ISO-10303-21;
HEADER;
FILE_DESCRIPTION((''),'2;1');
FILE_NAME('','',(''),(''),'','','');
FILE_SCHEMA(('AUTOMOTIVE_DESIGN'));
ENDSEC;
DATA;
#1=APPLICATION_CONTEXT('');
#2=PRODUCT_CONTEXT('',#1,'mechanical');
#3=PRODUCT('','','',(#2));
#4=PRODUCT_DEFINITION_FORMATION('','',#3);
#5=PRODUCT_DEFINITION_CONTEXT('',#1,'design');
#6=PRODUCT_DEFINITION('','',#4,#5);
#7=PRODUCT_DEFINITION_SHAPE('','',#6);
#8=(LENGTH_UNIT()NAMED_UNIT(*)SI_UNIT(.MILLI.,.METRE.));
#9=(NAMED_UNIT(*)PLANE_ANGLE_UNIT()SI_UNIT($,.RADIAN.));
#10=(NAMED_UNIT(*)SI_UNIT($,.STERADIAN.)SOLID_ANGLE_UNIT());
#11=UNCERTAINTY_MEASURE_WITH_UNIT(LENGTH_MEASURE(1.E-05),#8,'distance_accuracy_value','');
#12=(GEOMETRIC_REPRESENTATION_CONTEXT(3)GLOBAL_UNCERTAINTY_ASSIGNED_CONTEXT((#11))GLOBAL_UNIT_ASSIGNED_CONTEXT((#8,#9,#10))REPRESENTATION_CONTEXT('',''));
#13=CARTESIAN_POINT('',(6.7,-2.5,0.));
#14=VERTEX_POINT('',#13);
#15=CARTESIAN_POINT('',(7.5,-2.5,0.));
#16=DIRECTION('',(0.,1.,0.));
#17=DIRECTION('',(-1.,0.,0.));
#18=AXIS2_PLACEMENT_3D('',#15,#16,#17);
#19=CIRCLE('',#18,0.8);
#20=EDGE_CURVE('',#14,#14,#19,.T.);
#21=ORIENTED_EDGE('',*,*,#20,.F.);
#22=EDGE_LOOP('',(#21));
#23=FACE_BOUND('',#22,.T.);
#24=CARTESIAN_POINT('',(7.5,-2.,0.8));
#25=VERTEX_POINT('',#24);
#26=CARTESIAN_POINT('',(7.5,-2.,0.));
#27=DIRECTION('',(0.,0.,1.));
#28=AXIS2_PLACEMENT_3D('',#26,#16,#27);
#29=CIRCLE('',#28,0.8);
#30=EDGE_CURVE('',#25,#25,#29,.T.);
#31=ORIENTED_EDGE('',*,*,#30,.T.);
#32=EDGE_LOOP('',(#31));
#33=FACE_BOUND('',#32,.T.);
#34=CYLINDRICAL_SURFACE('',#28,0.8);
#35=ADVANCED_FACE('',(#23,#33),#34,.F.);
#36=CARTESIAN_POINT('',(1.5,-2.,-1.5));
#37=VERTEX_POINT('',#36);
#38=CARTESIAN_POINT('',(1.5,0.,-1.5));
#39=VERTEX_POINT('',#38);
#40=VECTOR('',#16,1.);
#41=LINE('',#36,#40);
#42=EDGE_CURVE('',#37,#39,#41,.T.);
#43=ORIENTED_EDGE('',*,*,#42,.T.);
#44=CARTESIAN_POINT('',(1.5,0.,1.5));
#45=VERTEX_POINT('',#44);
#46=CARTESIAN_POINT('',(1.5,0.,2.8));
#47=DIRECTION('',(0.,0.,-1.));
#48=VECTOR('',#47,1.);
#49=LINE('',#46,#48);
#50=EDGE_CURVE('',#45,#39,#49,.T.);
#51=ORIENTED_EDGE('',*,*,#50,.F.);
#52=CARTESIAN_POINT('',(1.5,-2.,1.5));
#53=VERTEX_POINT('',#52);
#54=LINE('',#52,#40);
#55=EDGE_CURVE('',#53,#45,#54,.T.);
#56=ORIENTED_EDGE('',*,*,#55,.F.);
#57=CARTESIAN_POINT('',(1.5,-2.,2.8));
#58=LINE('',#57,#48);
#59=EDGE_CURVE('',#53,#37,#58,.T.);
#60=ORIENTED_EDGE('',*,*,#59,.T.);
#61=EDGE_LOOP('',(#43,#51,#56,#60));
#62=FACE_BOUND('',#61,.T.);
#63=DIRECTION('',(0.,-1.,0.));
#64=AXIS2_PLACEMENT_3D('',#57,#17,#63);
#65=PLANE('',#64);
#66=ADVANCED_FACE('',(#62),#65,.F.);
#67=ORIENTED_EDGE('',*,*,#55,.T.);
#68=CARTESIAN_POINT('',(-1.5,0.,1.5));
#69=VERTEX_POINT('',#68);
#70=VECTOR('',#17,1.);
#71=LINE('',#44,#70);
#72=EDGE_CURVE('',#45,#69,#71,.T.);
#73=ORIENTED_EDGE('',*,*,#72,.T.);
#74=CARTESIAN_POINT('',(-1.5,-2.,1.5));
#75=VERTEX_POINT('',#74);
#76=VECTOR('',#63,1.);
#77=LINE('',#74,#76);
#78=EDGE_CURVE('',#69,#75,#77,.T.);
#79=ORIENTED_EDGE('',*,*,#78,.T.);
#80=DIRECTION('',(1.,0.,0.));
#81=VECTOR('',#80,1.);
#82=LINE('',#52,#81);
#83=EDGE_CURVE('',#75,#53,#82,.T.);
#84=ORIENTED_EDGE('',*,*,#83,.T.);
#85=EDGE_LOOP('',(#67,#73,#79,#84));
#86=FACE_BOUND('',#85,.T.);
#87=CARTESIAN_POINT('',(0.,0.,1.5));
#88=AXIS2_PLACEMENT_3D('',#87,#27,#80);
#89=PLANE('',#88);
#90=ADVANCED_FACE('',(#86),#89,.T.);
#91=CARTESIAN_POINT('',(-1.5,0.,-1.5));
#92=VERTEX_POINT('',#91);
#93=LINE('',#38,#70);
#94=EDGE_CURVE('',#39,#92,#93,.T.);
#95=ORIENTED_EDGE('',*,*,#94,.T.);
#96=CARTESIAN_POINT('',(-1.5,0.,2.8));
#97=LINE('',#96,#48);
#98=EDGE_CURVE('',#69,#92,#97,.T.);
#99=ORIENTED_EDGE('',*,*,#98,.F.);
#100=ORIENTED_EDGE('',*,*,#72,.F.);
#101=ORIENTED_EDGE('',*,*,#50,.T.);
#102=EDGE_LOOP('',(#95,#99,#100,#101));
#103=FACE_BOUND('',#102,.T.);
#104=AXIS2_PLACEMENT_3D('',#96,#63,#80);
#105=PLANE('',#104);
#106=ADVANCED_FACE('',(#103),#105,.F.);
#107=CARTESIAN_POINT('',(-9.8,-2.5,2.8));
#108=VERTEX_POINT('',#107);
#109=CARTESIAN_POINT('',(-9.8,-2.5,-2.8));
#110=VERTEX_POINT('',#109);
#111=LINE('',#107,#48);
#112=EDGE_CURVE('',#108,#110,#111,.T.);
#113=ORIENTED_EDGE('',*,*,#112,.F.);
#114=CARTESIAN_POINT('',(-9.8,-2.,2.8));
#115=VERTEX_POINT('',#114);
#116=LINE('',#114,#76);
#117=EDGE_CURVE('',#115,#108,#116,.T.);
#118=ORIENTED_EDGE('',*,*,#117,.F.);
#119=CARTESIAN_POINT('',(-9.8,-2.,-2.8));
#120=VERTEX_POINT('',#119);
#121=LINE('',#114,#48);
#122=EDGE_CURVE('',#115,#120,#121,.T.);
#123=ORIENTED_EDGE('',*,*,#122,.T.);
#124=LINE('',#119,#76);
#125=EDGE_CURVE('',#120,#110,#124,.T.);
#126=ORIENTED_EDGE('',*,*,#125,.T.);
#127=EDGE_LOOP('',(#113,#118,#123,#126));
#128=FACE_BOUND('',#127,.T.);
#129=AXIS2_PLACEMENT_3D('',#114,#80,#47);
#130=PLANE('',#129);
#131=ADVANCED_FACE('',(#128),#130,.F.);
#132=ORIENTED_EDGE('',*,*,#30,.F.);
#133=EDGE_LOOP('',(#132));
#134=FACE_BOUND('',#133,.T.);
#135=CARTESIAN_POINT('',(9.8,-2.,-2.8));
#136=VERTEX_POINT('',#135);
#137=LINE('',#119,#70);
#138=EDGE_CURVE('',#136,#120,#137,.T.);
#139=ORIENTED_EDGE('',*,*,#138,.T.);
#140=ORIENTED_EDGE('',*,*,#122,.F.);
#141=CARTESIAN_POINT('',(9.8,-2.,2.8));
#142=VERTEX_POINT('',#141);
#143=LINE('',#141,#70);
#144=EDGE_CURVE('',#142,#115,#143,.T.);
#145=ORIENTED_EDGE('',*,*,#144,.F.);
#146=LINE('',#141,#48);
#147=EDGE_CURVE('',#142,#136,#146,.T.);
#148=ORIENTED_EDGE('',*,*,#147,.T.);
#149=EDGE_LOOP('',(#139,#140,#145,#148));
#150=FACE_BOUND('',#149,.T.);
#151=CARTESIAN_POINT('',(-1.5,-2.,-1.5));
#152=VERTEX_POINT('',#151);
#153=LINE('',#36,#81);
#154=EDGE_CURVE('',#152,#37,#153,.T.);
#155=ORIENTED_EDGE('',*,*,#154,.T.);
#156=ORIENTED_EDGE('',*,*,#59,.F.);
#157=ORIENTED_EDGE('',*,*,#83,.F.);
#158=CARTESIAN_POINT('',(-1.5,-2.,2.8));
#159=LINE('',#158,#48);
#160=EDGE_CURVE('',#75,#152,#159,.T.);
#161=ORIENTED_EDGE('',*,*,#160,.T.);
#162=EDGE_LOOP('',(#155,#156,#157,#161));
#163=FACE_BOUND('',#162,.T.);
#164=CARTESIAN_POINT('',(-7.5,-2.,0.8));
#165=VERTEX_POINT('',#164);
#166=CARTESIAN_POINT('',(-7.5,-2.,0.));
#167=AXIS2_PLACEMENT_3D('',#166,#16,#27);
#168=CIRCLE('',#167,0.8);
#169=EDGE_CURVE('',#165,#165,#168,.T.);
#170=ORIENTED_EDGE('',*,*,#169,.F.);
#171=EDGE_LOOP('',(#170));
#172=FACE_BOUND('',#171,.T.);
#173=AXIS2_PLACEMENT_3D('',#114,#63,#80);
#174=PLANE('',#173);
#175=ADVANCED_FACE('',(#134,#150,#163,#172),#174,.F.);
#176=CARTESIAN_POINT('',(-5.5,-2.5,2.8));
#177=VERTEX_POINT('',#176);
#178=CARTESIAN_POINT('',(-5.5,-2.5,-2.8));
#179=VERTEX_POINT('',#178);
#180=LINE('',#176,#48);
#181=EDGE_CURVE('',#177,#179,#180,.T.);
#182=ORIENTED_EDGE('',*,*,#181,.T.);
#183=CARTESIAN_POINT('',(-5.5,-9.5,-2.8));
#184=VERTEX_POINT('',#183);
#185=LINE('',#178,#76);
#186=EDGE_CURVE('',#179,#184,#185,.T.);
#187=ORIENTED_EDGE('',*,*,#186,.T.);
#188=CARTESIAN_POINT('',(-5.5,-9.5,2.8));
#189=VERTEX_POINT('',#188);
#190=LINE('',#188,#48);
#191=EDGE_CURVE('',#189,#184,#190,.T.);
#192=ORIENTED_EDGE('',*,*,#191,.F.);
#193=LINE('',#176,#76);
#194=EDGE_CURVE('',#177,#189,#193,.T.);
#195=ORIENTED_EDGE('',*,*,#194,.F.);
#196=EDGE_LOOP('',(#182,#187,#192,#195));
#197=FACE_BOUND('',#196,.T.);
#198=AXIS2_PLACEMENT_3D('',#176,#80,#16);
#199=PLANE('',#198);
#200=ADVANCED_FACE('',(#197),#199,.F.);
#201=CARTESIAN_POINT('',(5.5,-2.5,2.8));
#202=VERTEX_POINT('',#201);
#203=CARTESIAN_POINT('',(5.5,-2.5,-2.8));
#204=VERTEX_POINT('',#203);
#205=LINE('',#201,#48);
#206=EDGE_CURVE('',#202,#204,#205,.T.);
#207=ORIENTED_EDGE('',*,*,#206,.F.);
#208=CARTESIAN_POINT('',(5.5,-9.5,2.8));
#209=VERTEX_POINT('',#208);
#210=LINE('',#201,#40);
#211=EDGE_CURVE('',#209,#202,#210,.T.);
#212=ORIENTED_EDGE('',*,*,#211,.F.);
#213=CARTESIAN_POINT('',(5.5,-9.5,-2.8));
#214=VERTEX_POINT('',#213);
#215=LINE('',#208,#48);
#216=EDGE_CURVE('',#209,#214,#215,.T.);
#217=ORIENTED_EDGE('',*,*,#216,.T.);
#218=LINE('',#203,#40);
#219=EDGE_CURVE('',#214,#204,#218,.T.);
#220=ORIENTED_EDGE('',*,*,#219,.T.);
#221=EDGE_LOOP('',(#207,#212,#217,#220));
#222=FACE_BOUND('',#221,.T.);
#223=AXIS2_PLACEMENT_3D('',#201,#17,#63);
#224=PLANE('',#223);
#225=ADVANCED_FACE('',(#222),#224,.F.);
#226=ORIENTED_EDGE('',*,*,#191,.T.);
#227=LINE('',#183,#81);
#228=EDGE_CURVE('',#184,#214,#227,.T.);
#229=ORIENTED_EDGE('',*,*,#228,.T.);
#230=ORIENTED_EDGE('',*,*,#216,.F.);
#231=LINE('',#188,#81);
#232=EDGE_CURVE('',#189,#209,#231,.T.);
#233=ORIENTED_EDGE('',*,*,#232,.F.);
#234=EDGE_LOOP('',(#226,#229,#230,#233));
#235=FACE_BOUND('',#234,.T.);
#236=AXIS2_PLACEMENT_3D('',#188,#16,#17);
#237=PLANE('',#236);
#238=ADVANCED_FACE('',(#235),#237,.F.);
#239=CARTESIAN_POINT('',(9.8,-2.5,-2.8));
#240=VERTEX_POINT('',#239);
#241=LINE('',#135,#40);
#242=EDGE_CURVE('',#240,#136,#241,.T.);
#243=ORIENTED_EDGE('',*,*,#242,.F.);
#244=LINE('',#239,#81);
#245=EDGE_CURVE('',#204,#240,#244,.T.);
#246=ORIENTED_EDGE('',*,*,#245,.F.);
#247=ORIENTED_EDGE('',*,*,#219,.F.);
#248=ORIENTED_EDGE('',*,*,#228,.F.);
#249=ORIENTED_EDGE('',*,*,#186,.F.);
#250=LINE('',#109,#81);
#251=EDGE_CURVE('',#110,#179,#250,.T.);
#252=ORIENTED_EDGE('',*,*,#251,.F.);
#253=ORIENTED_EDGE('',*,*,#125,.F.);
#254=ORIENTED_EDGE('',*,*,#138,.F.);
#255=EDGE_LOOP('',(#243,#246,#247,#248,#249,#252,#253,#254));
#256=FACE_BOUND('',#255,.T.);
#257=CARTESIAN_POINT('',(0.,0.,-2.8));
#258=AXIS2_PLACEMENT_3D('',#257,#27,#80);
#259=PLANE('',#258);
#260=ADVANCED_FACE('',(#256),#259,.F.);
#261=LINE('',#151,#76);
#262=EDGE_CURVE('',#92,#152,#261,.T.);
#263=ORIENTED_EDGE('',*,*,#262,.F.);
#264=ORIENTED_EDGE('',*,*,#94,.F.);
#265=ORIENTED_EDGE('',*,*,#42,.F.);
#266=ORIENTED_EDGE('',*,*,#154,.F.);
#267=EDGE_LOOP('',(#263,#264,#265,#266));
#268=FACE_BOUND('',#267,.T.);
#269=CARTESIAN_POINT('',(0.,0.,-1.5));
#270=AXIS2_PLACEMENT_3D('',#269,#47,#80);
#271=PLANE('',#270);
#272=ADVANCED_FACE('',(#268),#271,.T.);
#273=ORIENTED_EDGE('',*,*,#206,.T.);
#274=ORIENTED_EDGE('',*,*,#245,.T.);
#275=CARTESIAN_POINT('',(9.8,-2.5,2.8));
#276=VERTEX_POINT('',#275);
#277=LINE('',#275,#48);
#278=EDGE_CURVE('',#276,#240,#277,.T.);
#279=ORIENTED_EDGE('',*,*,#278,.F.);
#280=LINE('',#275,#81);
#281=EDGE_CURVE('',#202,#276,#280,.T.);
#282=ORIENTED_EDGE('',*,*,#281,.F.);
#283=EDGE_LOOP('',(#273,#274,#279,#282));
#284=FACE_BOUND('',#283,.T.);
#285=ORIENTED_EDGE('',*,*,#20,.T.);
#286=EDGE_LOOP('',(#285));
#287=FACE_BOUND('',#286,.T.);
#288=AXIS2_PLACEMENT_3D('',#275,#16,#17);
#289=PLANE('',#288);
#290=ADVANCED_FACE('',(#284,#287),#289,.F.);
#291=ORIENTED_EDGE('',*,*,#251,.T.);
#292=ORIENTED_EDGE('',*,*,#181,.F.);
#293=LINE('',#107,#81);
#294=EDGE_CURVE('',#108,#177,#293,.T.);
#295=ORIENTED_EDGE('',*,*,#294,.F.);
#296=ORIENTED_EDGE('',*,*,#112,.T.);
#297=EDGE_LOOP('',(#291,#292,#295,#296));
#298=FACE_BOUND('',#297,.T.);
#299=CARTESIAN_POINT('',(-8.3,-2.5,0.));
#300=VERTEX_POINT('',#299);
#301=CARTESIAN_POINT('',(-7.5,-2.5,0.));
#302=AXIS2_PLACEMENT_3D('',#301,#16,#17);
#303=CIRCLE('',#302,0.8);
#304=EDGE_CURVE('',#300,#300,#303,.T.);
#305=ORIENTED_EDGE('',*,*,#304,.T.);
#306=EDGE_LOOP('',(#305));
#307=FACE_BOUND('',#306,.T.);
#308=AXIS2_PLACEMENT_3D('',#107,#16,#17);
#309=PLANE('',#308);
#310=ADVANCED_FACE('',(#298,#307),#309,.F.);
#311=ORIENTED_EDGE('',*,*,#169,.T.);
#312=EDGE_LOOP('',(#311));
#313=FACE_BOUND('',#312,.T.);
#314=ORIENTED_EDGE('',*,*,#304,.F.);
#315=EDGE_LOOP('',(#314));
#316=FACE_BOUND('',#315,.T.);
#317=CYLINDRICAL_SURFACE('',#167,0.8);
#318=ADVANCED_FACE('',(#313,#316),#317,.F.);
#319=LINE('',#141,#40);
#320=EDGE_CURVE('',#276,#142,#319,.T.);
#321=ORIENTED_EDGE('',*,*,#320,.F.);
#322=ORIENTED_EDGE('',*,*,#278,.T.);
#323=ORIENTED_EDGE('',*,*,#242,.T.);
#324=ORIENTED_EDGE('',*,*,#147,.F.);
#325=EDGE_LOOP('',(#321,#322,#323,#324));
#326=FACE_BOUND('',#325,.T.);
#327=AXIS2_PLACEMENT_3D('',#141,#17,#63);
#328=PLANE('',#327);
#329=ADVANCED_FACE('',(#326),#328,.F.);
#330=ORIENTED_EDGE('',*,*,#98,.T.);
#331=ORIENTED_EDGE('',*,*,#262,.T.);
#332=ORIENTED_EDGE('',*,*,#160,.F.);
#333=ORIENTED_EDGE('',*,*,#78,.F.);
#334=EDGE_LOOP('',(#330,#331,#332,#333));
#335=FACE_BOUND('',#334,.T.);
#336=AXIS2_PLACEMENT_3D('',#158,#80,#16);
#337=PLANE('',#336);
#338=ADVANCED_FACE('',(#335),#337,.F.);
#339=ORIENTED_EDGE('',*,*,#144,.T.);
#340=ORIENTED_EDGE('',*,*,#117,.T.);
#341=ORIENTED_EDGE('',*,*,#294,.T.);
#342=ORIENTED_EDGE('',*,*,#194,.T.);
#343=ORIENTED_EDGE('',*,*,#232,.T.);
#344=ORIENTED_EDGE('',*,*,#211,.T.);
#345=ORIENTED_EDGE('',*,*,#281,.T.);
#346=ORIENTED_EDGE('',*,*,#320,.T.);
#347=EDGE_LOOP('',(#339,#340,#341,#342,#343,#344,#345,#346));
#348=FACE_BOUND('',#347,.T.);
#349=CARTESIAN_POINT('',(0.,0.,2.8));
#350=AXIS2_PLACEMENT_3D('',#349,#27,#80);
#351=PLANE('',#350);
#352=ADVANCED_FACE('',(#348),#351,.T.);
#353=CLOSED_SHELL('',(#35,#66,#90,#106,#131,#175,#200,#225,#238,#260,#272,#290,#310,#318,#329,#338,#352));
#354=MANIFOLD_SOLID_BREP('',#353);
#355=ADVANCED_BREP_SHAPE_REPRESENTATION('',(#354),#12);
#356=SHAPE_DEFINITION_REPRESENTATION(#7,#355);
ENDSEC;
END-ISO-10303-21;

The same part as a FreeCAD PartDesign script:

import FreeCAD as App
import Part
import Sketcher
from FreeCAD import Vector


def add_polygon(sketch, points):
    """Adds a closed chain of lines whose ends are joined by coincident constraints."""
    first, n = sketch.GeometryCount, len(points)
    for a, b in zip(points, points[1:] + points[:1]):
        sketch.addGeometry(Part.LineSegment(App.Vector(*a, 0), App.Vector(*b, 0)), False)
    for i in range(n):
        sketch.addConstraint(Sketcher.Constraint("Coincident", first + i, 2, first + (i + 1) % n, 1))

doc = App.newDocument("Part")
params = doc.addObject("Spreadsheet::Sheet", "Params")
for row, (alias, value) in enumerate([
    ("sketch1_width", "11 mm"),
    ("sketch1_width2", "3 mm"),
    ("sketch1_height", "7 mm"),
    ("sketch1_height2", "2 mm"),
    ("sketch1_width3", "8.3 mm"),
    ("pad1_length", "5.6 mm"),
    ("sketch2_width", "3 mm"),
    ("sketch2_height", "2 mm"),
    ("sketch3_diameter", "1.6 mm"),
    ("hole_diameter", "1.6 mm"),
], start=1):
    params.set(f"A{row}", alias)
    params.set(f"B{row}", "=" + value)
    params.setAlias(f"B{row}", alias)

body = doc.addObject("PartDesign::Body", "Body")

# Sketch on XY plane
sketch1 = body.newObject("Sketcher::SketchObject", "Sketch")
sketch1.AttachmentSupport = (doc.getObject("XY_Plane"), [""])
sketch1.MapMode = "FlatFace"
add_polygon(sketch1, [(-1.5, -2), (-9.8, -2), (-9.8, -2.5), (-5.5, -2.5), (-5.5, -9.5), (5.5, -9.5), (5.5, -2.5), (9.8, -2.5), (9.8, -2), (1.5, -2), (1.5, 0), (-1.5, 0)])  # lines 0-11
sketch1.addConstraint([
    Sketcher.Constraint("Horizontal", 0),
    Sketcher.Constraint("Vertical", 1),
    Sketcher.Constraint("Horizontal", 2),
    Sketcher.Constraint("Vertical", 3),
    Sketcher.Constraint("Horizontal", 4),
    Sketcher.Constraint("Vertical", 5),
    Sketcher.Constraint("Horizontal", 6),
    Sketcher.Constraint("Vertical", 7),
    Sketcher.Constraint("Horizontal", 8),
    Sketcher.Constraint("Vertical", 9),
    Sketcher.Constraint("Horizontal", 10),
    Sketcher.Constraint("Vertical", 11),
    Sketcher.Constraint("Symmetric", 9, 2, 10, 2, -1, 1),
    Sketcher.Constraint("Symmetric", 2, 2, 5, 2, -2),
    Sketcher.Constraint("Symmetric", 0, 2, 7, 2, -2),
    Sketcher.Constraint("DistanceX", 4, 1, 4, 2, 11.0),
    Sketcher.Constraint("DistanceX", 10, 2, 10, 1, 3.0),
    Sketcher.Constraint("DistanceY", 3, 2, 3, 1, 7.0),
    Sketcher.Constraint("DistanceY", 9, 1, 9, 2, 2.0),
    Sketcher.Constraint("DistanceX", 0, 2, 0, 1, 8.3),
    Sketcher.Constraint("DistanceY", 1, 2, 1, 1, 0.5),
])
sketch1.setExpression("Constraints[27]", "Params.sketch1_width")
sketch1.setExpression("Constraints[28]", "Params.sketch1_width2")
sketch1.setExpression("Constraints[29]", "Params.sketch1_height")
sketch1.setExpression("Constraints[30]", "Params.sketch1_height2")
sketch1.setExpression("Constraints[31]", "Params.sketch1_width3")
pad1 = body.newObject("PartDesign::Pad", "Pad")
pad1.Profile = sketch1
pad1.setExpression("Length", "Params.pad1_length")
pad1.Midplane = True

# Sketch on XY plane
sketch2 = body.newObject("Sketcher::SketchObject", "Sketch001")
sketch2.AttachmentSupport = (doc.getObject("XY_Plane"), [""])
sketch2.MapMode = "FlatFace"
sketch2.AttachmentOffset = App.Placement(Vector(0, 0, 1.5), App.Rotation())
add_polygon(sketch2, [(-1.5, 0), (-1.5, -2), (1.5, -2), (1.5, 0)])  # lines 0-3
sketch2.addConstraint([
    Sketcher.Constraint("Vertical", 0),
    Sketcher.Constraint("Horizontal", 1),
    Sketcher.Constraint("Vertical", 2),
    Sketcher.Constraint("Horizontal", 3),
    Sketcher.Constraint("Symmetric", 2, 2, 3, 2, -1, 1),
    Sketcher.Constraint("DistanceX", 1, 1, 1, 2, 3.0),
    Sketcher.Constraint("DistanceY", 0, 2, 0, 1, 2.0),
])
sketch2.setExpression("Constraints[9]", "Params.sketch2_width")
sketch2.setExpression("Constraints[10]", "Params.sketch2_height")
pocket1 = body.newObject("PartDesign::Pocket", "Pocket")
pocket1.Profile = sketch2
pocket1.Type = "ThroughAll"
pocket1.Reversed = True
doc.recompute()

mirrored = body.newObject("PartDesign::Mirrored", "Mirrored")
mirrored.Originals = [pocket1]
mirrored.MirrorPlane = (doc.getObject("XY_Plane"), [""])
body.Tip = mirrored

# Sketch on XZ plane
sketch3 = body.newObject("Sketcher::SketchObject", "Sketch002")
sketch3.AttachmentSupport = (doc.getObject("XZ_Plane"), [""])
sketch3.MapMode = "FlatFace"
sketch3.AttachmentOffset = App.Placement(Vector(0, 0, 2), App.Rotation())
sketch3.addGeometry([
    Part.Circle(Vector(-7.5, 0, 0), Vector(0, 0, 1), 0.8),
    Part.Circle(Vector(7.5, 0, 0), Vector(0, 0, 1), 0.8),
], False)
sketch3.addConstraint([
    Sketcher.Constraint("Equal", 0, 1),
    Sketcher.Constraint("Symmetric", 0, 3, 1, 3, -1, 1),
    Sketcher.Constraint("PointOnObject", 0, 3, -1),
    Sketcher.Constraint("Diameter", 0, 1.6),
    Sketcher.Constraint("DistanceX", 0, 3, 1, 3, 15.0),
])
sketch3.setExpression("Constraints[3]", "Params.sketch3_diameter")
doc.recompute()
hole = body.newObject("PartDesign::Hole", "Hole")
hole.Profile = sketch3
hole.ThreadType = "None"
hole.setExpression("Diameter", "Params.hole_diameter")
hole.DepthType = "ThroughAll"
hole.Reversed = True

doc.recompute()
